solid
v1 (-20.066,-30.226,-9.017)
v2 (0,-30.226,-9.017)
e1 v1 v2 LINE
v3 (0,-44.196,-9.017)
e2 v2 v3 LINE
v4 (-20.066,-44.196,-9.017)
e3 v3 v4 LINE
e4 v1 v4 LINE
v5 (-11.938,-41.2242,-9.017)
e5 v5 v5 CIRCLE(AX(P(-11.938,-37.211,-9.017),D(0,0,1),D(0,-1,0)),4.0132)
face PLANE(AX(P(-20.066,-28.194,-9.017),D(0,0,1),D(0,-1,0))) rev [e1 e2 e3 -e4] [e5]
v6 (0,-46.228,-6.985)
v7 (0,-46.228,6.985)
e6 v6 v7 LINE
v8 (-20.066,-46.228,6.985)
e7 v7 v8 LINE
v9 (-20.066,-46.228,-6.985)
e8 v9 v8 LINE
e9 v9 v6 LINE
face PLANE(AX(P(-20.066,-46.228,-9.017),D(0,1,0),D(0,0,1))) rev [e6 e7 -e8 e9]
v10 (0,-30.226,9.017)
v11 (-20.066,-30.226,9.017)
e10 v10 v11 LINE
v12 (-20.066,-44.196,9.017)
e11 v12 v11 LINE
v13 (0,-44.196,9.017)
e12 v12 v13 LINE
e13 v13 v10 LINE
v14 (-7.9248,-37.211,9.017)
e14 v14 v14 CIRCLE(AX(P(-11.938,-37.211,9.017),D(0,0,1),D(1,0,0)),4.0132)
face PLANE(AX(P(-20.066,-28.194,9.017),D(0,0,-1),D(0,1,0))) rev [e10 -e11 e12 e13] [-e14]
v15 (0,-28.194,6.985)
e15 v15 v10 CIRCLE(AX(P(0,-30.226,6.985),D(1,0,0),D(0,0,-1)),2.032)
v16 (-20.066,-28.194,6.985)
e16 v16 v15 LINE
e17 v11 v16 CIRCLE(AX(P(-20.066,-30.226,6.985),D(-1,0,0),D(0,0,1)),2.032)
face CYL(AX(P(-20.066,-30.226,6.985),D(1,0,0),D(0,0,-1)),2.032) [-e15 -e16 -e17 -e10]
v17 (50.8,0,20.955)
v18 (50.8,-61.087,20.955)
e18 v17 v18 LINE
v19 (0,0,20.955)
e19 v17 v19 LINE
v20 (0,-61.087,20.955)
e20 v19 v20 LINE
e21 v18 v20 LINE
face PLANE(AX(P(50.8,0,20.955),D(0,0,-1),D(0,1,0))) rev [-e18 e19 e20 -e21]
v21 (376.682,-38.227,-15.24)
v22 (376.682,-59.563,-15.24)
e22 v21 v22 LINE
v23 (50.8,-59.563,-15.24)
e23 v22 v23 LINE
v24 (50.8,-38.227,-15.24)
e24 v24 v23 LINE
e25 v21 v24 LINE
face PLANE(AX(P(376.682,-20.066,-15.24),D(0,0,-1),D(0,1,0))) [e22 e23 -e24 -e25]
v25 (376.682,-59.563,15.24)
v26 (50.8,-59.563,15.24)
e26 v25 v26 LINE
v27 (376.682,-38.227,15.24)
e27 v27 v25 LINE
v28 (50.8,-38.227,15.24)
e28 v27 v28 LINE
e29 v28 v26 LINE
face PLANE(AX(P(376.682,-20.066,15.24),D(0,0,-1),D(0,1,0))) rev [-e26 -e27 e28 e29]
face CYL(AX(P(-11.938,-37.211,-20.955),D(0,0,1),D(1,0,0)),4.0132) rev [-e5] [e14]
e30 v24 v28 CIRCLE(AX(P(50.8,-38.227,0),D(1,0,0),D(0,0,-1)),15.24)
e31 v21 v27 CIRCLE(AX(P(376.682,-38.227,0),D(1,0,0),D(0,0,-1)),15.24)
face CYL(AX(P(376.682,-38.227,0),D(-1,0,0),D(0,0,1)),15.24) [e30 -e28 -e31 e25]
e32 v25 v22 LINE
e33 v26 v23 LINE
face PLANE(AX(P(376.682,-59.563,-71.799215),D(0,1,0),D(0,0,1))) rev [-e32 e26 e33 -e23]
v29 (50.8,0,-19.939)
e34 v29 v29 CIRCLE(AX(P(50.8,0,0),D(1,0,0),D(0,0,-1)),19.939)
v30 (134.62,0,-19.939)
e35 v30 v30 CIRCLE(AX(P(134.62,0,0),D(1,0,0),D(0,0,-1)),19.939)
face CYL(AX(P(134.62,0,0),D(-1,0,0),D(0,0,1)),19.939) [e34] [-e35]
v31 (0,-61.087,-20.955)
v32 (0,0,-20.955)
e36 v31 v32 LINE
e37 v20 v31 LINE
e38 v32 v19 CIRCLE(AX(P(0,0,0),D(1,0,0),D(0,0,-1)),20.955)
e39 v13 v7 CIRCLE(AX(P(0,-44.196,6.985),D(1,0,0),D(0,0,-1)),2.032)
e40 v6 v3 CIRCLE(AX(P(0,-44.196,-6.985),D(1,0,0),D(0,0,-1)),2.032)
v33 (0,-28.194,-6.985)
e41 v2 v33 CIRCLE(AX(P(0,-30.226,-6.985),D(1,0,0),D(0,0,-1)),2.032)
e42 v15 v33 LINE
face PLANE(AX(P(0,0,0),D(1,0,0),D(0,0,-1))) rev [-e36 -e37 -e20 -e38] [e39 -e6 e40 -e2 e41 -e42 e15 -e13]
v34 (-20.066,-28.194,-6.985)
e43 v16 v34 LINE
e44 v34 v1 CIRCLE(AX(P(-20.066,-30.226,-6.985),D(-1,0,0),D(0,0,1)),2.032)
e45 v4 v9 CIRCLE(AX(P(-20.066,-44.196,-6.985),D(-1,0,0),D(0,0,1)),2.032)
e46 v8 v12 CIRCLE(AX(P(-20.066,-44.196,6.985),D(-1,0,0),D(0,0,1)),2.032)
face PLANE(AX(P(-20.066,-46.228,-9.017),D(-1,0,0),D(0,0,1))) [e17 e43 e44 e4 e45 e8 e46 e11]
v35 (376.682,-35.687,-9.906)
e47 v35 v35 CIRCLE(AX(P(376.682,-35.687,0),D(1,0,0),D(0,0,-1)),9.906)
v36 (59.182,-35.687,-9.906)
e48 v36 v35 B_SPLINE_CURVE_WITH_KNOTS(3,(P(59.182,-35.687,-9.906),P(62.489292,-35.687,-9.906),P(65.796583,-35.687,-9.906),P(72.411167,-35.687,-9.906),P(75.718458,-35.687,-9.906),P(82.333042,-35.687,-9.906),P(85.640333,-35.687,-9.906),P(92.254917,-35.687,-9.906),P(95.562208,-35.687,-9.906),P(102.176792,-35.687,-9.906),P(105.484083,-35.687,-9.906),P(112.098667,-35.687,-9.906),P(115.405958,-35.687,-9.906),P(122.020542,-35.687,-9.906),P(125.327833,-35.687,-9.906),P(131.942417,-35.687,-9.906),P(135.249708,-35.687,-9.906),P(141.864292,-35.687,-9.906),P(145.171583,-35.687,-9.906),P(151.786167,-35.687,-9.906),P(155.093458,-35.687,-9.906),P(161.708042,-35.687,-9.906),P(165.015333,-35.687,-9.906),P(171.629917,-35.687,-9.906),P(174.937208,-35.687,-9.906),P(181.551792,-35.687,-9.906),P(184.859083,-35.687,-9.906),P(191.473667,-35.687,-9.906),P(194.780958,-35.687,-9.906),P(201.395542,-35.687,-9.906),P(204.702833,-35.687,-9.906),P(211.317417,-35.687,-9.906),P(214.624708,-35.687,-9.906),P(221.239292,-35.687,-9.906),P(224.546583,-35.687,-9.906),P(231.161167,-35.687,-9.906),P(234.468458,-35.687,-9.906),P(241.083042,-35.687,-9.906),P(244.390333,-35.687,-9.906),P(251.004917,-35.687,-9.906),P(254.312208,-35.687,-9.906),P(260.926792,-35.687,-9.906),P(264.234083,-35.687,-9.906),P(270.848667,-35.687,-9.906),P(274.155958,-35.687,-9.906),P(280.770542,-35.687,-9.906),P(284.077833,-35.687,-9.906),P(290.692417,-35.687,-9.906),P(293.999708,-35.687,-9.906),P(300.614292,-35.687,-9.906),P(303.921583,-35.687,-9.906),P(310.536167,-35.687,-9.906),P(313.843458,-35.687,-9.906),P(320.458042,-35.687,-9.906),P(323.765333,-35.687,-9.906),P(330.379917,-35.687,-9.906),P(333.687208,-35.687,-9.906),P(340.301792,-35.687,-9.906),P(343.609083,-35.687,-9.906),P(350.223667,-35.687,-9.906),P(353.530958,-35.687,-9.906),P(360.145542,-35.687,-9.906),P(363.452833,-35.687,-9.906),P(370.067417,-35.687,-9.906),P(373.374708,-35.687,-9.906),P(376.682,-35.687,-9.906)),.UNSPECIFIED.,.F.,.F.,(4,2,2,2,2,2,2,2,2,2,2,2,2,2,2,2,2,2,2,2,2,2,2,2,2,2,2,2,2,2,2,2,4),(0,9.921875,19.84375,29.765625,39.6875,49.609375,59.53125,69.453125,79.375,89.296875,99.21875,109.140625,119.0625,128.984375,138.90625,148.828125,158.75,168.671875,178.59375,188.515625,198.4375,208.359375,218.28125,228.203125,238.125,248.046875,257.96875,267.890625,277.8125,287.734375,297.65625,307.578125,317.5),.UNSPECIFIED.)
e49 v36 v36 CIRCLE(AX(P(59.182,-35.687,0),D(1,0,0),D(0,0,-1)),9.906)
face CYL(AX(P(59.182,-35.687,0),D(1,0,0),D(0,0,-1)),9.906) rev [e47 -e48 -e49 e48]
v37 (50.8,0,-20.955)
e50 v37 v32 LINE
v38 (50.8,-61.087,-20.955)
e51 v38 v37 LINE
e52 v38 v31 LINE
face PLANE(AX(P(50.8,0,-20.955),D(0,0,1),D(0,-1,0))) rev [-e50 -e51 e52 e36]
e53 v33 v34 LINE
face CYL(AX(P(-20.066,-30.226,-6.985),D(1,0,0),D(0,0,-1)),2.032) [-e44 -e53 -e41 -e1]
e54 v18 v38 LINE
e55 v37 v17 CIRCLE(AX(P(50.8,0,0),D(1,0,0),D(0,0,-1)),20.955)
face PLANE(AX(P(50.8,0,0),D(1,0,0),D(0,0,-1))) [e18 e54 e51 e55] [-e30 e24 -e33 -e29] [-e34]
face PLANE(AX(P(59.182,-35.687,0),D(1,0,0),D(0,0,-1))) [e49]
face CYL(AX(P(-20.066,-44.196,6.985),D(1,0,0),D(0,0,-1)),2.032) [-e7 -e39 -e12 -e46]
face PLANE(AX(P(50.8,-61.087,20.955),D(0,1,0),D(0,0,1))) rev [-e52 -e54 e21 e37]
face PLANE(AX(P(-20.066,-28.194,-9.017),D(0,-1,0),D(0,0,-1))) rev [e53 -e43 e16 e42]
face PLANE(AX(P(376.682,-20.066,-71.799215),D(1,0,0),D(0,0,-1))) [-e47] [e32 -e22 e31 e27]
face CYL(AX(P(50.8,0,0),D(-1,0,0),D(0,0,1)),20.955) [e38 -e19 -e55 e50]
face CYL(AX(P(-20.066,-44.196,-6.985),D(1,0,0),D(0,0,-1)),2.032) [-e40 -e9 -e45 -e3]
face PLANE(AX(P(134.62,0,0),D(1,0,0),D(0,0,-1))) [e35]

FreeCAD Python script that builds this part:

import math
import FreeCAD as App
import Part
import Sketcher
from FreeCAD import Vector
Q = App.Units.Quantity


def edges_at(feature, points):
    """Names of the edges that pass closest to the given points."""
    edges = feature.Shape.Edges
    near = lambda p: min(range(len(edges)), key=lambda i: edges[i].distToShape(Part.Vertex(*p))[0])
    return sorted({f"Edge{near(p) + 1}" for p in points})

doc = App.newDocument("Part")
params = doc.addObject("Spreadsheet::Sheet", "Params")
for row, (alias, value) in enumerate([
    ("sketch1_radius", "0.825 in"),
    ("sketch1_width", "2.405 in"),
    ("pad1_length", "2 in"),
    ("sketch2_diameter", "1.57 in"),
    ("pad2_length", "3.3 in"),
    ("sketch3_radius", "0.6 in"),
    ("sketch3_width", "0.84 in"),
    ("pad3_length", "12.83 in"),
    ("sketch4_width", "0.71 in"),
    ("pad4_length", "0.79 in"),
    ("fillet_radius", "0.08 in"),
    ("sketch5_diameter", "0.316 in"),
    ("sketch6_diameter", "0.78 in"),
    ("pocket2_length", "12.5 in"),
], start=1):
    params.set(f"A{row}", alias)
    params.set(f"B{row}", "=" + value)
    params.setAlias(f"B{row}", alias)

body = doc.addObject("PartDesign::Body", "Body")

sketch1 = body.newObject("Sketcher::SketchObject", "Sketch")
sketch1.AttachmentSupport = (doc.getObject("YZ_Plane"), [""])
sketch1.MapMode = "FlatFace"
sketch1.addGeometry(Part.LineSegment(Vector(0, 21, 0), Vector(-61, 21, 0)), False)
sketch1.addGeometry(Part.LineSegment(Vector(-61, 21, 0), Vector(-61, -21, 0)), False)
sketch1.addGeometry(Part.LineSegment(Vector(-61, -21, 0), Vector(0, -21, 0)), False)
sketch1.addGeometry(Part.ArcOfCircle(Part.Circle(Vector(0, 0, 0), Vector(0, 0, 1), 21), math.radians(-90), math.radians(90)), False)
sketch1.addConstraint(Sketcher.Constraint("Coincident", 0, 2, 1, 1))
sketch1.addConstraint(Sketcher.Constraint("Coincident", 1, 2, 2, 1))
sketch1.addConstraint(Sketcher.Constraint("Tangent", 2, 2, 3, 1))
sketch1.addConstraint(Sketcher.Constraint("Tangent", 3, 2, 0, 1))
sketch1.addConstraint(Sketcher.Constraint("Horizontal", 0))
sketch1.addConstraint(Sketcher.Constraint("Vertical", 1))
sketch1.addConstraint(Sketcher.Constraint("Horizontal", 2))
sketch1.addConstraint(Sketcher.Constraint("Coincident", 3, 3, -1, 1))
sketch1.addConstraint(Sketcher.Constraint("Radius", 3, Q("0.825 in")))
sketch1.addConstraint(Sketcher.Constraint("DistanceX", 0, 2, 0, 1, Q("2.405 in")))
sketch1.setExpression("Constraints[8]", "Params.sketch1_radius")
sketch1.setExpression("Constraints[9]", "Params.sketch1_width")
pad1 = body.newObject("PartDesign::Pad", "Pad")
pad1.Profile = sketch1
pad1.setExpression("Length", "Params.pad1_length")

sketch2 = body.newObject("Sketcher::SketchObject", "Sketch001")
sketch2.AttachmentSupport = (doc.getObject("YZ_Plane"), [""])
sketch2.MapMode = "FlatFace"
sketch2.AttachmentOffset = App.Placement(Vector(0, 0, 2 * 25.4), App.Rotation())
sketch2.addGeometry(Part.Circle(Vector(0, 0, 0), Vector(0, 0, 1), 20), False)
sketch2.addConstraint(Sketcher.Constraint("Coincident", 0, 3, -1, 1))
sketch2.addConstraint(Sketcher.Constraint("Diameter", 0, Q("1.57 in")))
sketch2.setExpression("Constraints[1]", "Params.sketch2_diameter")
pad2 = body.newObject("PartDesign::Pad", "Pad001")
pad2.Profile = sketch2
pad2.setExpression("Length", "Params.pad2_length")

sketch3 = body.newObject("Sketcher::SketchObject", "Sketch002")
sketch3.AttachmentSupport = (doc.getObject("YZ_Plane"), [""])
sketch3.MapMode = "FlatFace"
sketch3.AttachmentOffset = App.Placement(Vector(0, 0, 2 * 25.4), App.Rotation())
sketch3.addGeometry(Part.ArcOfCircle(Part.Circle(Vector(-38, 0, 0), Vector(0, 0, 1), 15), math.radians(-90), math.radians(90)), False)
sketch3.addGeometry(Part.LineSegment(Vector(-38, 15, 0), Vector(-60, 15, 0)), False)
sketch3.addGeometry(Part.LineSegment(Vector(-60, 15, 0), Vector(-60, -15, 0)), False)
sketch3.addGeometry(Part.LineSegment(Vector(-60, -15, 0), Vector(-38, -15, 0)), False)
sketch3.addConstraint(Sketcher.Constraint("Tangent", 0, 2, 1, 1))
sketch3.addConstraint(Sketcher.Constraint("Coincident", 1, 2, 2, 1))
sketch3.addConstraint(Sketcher.Constraint("Coincident", 2, 2, 3, 1))
sketch3.addConstraint(Sketcher.Constraint("Tangent", 3, 2, 0, 1))
sketch3.addConstraint(Sketcher.Constraint("Horizontal", 1))
sketch3.addConstraint(Sketcher.Constraint("Vertical", 2))
sketch3.addConstraint(Sketcher.Constraint("Horizontal", 3))
sketch3.addConstraint(Sketcher.Constraint("PointOnObject", 0, 3, -1))
sketch3.addConstraint(Sketcher.Constraint("Radius", 0, Q("0.6 in")))
sketch3.addConstraint(Sketcher.Constraint("DistanceX", 1, 2, 1, 1, Q("0.84 in")))
sketch3.addConstraint(Sketcher.Constraint("DistanceX", 0, 3, -1, 1, Q("1.505 in")))
sketch3.setExpression("Constraints[8]", "Params.sketch3_radius")
sketch3.setExpression("Constraints[9]", "Params.sketch3_width")
pad3 = body.newObject("PartDesign::Pad", "Pad002")
pad3.Profile = sketch3
pad3.setExpression("Length", "Params.pad3_length")

sketch4 = body.newObject("Sketcher::SketchObject", "Sketch003")
sketch4.AttachmentSupport = (doc.getObject("YZ_Plane"), [""])
sketch4.MapMode = "FlatFace"
sketch4.addGeometry(Part.LineSegment(Vector(-28, -9, 0), Vector(-46, -9, 0)), False)
sketch4.addGeometry(Part.LineSegment(Vector(-46, -9, 0), Vector(-46, 9, 0)), False)
sketch4.addGeometry(Part.LineSegment(Vector(-46, 9, 0), Vector(-28, 9, 0)), False)
sketch4.addGeometry(Part.LineSegment(Vector(-28, 9, 0), Vector(-28, -9, 0)), False)
sketch4.addConstraint(Sketcher.Constraint("Coincident", 0, 2, 1, 1))
sketch4.addConstraint(Sketcher.Constraint("Coincident", 1, 2, 2, 1))
sketch4.addConstraint(Sketcher.Constraint("Coincident", 2, 2, 3, 1))
sketch4.addConstraint(Sketcher.Constraint("Coincident", 3, 2, 0, 1))
sketch4.addConstraint(Sketcher.Constraint("Horizontal", 0))
sketch4.addConstraint(Sketcher.Constraint("Vertical", 1))
sketch4.addConstraint(Sketcher.Constraint("Horizontal", 2))
sketch4.addConstraint(Sketcher.Constraint("Vertical", 3))
sketch4.addConstraint(Sketcher.Constraint("Equal", 2, 1))
sketch4.addConstraint(Sketcher.Constraint("DistanceX", 0, 2, 0, 1, Q("0.71 in")))
sketch4.addConstraint(Sketcher.Constraint("DistanceX", 0, 2, -1, 1, Q("1.82 in")))
sketch4.addConstraint(Sketcher.Constraint("DistanceY", 0, 2, -1, 1, Q("0.355 in")))
sketch4.setExpression("Constraints[9]", "Params.sketch4_width")
pad4 = body.newObject("PartDesign::Pad", "Pad003")
pad4.Profile = sketch4
pad4.setExpression("Length", "Params.pad4_length")
pad4.Reversed = True
doc.recompute()

fillet = body.newObject("PartDesign::Fillet", "Fillet")
fillet.Base = (pad4, edges_at(pad4, [
    (-10.033, -28.194, -9.017),
    (-10.033, -46.228, -9.017),
    (-10.033, -46.228, 9.017),
    (-10.033, -28.194, 9.017),
]))
fillet.setExpression("Radius", "Params.fillet_radius")

sketch5 = body.newObject("Sketcher::SketchObject", "Sketch004")
sketch5.AttachmentSupport = (doc.getObject("XY_Plane"), [""])
sketch5.MapMode = "FlatFace"
sketch5.AttachmentOffset = App.Placement(Vector(0, 0, 0.355 * 25.4), App.Rotation())
sketch5.addGeometry(Part.Circle(Vector(-11.9, -37.2, 0), Vector(0, 0, 1), 4), False)
sketch5.addConstraint(Sketcher.Constraint("Diameter", 0, Q("0.316 in")))
sketch5.addConstraint(Sketcher.Constraint("DistanceX", 0, 3, -1, 1, Q("0.47 in")))
sketch5.addConstraint(Sketcher.Constraint("DistanceY", 0, 3, -1, 1, Q("1.465 in")))
sketch5.setExpression("Constraints[0]", "Params.sketch5_diameter")
pocket1 = body.newObject("PartDesign::Pocket", "Pocket")
pocket1.Profile = sketch5
pocket1.Type = "ThroughAll"

sketch6 = body.newObject("Sketcher::SketchObject", "Sketch005")
sketch6.AttachmentSupport = (doc.getObject("YZ_Plane"), [""])
sketch6.MapMode = "FlatFace"
sketch6.AttachmentOffset = App.Placement(Vector(0, 0, 14.83 * 25.4), App.Rotation())
sketch6.addGeometry(Part.Circle(Vector(-36, 0, 0), Vector(0, 0, 1), 10), False)
sketch6.addConstraint(Sketcher.Constraint("PointOnObject", 0, 3, -1))
sketch6.addConstraint(Sketcher.Constraint("Diameter", 0, Q("0.78 in")))
sketch6.addConstraint(Sketcher.Constraint("DistanceX", 0, 3, -1, 1, Q("1.405 in")))
sketch6.setExpression("Constraints[1]", "Params.sketch6_diameter")
pocket2 = body.newObject("PartDesign::Pocket", "Pocket001")
pocket2.Profile = sketch6
pocket2.setExpression("Length", "Params.pocket2_length")

doc.recompute()
